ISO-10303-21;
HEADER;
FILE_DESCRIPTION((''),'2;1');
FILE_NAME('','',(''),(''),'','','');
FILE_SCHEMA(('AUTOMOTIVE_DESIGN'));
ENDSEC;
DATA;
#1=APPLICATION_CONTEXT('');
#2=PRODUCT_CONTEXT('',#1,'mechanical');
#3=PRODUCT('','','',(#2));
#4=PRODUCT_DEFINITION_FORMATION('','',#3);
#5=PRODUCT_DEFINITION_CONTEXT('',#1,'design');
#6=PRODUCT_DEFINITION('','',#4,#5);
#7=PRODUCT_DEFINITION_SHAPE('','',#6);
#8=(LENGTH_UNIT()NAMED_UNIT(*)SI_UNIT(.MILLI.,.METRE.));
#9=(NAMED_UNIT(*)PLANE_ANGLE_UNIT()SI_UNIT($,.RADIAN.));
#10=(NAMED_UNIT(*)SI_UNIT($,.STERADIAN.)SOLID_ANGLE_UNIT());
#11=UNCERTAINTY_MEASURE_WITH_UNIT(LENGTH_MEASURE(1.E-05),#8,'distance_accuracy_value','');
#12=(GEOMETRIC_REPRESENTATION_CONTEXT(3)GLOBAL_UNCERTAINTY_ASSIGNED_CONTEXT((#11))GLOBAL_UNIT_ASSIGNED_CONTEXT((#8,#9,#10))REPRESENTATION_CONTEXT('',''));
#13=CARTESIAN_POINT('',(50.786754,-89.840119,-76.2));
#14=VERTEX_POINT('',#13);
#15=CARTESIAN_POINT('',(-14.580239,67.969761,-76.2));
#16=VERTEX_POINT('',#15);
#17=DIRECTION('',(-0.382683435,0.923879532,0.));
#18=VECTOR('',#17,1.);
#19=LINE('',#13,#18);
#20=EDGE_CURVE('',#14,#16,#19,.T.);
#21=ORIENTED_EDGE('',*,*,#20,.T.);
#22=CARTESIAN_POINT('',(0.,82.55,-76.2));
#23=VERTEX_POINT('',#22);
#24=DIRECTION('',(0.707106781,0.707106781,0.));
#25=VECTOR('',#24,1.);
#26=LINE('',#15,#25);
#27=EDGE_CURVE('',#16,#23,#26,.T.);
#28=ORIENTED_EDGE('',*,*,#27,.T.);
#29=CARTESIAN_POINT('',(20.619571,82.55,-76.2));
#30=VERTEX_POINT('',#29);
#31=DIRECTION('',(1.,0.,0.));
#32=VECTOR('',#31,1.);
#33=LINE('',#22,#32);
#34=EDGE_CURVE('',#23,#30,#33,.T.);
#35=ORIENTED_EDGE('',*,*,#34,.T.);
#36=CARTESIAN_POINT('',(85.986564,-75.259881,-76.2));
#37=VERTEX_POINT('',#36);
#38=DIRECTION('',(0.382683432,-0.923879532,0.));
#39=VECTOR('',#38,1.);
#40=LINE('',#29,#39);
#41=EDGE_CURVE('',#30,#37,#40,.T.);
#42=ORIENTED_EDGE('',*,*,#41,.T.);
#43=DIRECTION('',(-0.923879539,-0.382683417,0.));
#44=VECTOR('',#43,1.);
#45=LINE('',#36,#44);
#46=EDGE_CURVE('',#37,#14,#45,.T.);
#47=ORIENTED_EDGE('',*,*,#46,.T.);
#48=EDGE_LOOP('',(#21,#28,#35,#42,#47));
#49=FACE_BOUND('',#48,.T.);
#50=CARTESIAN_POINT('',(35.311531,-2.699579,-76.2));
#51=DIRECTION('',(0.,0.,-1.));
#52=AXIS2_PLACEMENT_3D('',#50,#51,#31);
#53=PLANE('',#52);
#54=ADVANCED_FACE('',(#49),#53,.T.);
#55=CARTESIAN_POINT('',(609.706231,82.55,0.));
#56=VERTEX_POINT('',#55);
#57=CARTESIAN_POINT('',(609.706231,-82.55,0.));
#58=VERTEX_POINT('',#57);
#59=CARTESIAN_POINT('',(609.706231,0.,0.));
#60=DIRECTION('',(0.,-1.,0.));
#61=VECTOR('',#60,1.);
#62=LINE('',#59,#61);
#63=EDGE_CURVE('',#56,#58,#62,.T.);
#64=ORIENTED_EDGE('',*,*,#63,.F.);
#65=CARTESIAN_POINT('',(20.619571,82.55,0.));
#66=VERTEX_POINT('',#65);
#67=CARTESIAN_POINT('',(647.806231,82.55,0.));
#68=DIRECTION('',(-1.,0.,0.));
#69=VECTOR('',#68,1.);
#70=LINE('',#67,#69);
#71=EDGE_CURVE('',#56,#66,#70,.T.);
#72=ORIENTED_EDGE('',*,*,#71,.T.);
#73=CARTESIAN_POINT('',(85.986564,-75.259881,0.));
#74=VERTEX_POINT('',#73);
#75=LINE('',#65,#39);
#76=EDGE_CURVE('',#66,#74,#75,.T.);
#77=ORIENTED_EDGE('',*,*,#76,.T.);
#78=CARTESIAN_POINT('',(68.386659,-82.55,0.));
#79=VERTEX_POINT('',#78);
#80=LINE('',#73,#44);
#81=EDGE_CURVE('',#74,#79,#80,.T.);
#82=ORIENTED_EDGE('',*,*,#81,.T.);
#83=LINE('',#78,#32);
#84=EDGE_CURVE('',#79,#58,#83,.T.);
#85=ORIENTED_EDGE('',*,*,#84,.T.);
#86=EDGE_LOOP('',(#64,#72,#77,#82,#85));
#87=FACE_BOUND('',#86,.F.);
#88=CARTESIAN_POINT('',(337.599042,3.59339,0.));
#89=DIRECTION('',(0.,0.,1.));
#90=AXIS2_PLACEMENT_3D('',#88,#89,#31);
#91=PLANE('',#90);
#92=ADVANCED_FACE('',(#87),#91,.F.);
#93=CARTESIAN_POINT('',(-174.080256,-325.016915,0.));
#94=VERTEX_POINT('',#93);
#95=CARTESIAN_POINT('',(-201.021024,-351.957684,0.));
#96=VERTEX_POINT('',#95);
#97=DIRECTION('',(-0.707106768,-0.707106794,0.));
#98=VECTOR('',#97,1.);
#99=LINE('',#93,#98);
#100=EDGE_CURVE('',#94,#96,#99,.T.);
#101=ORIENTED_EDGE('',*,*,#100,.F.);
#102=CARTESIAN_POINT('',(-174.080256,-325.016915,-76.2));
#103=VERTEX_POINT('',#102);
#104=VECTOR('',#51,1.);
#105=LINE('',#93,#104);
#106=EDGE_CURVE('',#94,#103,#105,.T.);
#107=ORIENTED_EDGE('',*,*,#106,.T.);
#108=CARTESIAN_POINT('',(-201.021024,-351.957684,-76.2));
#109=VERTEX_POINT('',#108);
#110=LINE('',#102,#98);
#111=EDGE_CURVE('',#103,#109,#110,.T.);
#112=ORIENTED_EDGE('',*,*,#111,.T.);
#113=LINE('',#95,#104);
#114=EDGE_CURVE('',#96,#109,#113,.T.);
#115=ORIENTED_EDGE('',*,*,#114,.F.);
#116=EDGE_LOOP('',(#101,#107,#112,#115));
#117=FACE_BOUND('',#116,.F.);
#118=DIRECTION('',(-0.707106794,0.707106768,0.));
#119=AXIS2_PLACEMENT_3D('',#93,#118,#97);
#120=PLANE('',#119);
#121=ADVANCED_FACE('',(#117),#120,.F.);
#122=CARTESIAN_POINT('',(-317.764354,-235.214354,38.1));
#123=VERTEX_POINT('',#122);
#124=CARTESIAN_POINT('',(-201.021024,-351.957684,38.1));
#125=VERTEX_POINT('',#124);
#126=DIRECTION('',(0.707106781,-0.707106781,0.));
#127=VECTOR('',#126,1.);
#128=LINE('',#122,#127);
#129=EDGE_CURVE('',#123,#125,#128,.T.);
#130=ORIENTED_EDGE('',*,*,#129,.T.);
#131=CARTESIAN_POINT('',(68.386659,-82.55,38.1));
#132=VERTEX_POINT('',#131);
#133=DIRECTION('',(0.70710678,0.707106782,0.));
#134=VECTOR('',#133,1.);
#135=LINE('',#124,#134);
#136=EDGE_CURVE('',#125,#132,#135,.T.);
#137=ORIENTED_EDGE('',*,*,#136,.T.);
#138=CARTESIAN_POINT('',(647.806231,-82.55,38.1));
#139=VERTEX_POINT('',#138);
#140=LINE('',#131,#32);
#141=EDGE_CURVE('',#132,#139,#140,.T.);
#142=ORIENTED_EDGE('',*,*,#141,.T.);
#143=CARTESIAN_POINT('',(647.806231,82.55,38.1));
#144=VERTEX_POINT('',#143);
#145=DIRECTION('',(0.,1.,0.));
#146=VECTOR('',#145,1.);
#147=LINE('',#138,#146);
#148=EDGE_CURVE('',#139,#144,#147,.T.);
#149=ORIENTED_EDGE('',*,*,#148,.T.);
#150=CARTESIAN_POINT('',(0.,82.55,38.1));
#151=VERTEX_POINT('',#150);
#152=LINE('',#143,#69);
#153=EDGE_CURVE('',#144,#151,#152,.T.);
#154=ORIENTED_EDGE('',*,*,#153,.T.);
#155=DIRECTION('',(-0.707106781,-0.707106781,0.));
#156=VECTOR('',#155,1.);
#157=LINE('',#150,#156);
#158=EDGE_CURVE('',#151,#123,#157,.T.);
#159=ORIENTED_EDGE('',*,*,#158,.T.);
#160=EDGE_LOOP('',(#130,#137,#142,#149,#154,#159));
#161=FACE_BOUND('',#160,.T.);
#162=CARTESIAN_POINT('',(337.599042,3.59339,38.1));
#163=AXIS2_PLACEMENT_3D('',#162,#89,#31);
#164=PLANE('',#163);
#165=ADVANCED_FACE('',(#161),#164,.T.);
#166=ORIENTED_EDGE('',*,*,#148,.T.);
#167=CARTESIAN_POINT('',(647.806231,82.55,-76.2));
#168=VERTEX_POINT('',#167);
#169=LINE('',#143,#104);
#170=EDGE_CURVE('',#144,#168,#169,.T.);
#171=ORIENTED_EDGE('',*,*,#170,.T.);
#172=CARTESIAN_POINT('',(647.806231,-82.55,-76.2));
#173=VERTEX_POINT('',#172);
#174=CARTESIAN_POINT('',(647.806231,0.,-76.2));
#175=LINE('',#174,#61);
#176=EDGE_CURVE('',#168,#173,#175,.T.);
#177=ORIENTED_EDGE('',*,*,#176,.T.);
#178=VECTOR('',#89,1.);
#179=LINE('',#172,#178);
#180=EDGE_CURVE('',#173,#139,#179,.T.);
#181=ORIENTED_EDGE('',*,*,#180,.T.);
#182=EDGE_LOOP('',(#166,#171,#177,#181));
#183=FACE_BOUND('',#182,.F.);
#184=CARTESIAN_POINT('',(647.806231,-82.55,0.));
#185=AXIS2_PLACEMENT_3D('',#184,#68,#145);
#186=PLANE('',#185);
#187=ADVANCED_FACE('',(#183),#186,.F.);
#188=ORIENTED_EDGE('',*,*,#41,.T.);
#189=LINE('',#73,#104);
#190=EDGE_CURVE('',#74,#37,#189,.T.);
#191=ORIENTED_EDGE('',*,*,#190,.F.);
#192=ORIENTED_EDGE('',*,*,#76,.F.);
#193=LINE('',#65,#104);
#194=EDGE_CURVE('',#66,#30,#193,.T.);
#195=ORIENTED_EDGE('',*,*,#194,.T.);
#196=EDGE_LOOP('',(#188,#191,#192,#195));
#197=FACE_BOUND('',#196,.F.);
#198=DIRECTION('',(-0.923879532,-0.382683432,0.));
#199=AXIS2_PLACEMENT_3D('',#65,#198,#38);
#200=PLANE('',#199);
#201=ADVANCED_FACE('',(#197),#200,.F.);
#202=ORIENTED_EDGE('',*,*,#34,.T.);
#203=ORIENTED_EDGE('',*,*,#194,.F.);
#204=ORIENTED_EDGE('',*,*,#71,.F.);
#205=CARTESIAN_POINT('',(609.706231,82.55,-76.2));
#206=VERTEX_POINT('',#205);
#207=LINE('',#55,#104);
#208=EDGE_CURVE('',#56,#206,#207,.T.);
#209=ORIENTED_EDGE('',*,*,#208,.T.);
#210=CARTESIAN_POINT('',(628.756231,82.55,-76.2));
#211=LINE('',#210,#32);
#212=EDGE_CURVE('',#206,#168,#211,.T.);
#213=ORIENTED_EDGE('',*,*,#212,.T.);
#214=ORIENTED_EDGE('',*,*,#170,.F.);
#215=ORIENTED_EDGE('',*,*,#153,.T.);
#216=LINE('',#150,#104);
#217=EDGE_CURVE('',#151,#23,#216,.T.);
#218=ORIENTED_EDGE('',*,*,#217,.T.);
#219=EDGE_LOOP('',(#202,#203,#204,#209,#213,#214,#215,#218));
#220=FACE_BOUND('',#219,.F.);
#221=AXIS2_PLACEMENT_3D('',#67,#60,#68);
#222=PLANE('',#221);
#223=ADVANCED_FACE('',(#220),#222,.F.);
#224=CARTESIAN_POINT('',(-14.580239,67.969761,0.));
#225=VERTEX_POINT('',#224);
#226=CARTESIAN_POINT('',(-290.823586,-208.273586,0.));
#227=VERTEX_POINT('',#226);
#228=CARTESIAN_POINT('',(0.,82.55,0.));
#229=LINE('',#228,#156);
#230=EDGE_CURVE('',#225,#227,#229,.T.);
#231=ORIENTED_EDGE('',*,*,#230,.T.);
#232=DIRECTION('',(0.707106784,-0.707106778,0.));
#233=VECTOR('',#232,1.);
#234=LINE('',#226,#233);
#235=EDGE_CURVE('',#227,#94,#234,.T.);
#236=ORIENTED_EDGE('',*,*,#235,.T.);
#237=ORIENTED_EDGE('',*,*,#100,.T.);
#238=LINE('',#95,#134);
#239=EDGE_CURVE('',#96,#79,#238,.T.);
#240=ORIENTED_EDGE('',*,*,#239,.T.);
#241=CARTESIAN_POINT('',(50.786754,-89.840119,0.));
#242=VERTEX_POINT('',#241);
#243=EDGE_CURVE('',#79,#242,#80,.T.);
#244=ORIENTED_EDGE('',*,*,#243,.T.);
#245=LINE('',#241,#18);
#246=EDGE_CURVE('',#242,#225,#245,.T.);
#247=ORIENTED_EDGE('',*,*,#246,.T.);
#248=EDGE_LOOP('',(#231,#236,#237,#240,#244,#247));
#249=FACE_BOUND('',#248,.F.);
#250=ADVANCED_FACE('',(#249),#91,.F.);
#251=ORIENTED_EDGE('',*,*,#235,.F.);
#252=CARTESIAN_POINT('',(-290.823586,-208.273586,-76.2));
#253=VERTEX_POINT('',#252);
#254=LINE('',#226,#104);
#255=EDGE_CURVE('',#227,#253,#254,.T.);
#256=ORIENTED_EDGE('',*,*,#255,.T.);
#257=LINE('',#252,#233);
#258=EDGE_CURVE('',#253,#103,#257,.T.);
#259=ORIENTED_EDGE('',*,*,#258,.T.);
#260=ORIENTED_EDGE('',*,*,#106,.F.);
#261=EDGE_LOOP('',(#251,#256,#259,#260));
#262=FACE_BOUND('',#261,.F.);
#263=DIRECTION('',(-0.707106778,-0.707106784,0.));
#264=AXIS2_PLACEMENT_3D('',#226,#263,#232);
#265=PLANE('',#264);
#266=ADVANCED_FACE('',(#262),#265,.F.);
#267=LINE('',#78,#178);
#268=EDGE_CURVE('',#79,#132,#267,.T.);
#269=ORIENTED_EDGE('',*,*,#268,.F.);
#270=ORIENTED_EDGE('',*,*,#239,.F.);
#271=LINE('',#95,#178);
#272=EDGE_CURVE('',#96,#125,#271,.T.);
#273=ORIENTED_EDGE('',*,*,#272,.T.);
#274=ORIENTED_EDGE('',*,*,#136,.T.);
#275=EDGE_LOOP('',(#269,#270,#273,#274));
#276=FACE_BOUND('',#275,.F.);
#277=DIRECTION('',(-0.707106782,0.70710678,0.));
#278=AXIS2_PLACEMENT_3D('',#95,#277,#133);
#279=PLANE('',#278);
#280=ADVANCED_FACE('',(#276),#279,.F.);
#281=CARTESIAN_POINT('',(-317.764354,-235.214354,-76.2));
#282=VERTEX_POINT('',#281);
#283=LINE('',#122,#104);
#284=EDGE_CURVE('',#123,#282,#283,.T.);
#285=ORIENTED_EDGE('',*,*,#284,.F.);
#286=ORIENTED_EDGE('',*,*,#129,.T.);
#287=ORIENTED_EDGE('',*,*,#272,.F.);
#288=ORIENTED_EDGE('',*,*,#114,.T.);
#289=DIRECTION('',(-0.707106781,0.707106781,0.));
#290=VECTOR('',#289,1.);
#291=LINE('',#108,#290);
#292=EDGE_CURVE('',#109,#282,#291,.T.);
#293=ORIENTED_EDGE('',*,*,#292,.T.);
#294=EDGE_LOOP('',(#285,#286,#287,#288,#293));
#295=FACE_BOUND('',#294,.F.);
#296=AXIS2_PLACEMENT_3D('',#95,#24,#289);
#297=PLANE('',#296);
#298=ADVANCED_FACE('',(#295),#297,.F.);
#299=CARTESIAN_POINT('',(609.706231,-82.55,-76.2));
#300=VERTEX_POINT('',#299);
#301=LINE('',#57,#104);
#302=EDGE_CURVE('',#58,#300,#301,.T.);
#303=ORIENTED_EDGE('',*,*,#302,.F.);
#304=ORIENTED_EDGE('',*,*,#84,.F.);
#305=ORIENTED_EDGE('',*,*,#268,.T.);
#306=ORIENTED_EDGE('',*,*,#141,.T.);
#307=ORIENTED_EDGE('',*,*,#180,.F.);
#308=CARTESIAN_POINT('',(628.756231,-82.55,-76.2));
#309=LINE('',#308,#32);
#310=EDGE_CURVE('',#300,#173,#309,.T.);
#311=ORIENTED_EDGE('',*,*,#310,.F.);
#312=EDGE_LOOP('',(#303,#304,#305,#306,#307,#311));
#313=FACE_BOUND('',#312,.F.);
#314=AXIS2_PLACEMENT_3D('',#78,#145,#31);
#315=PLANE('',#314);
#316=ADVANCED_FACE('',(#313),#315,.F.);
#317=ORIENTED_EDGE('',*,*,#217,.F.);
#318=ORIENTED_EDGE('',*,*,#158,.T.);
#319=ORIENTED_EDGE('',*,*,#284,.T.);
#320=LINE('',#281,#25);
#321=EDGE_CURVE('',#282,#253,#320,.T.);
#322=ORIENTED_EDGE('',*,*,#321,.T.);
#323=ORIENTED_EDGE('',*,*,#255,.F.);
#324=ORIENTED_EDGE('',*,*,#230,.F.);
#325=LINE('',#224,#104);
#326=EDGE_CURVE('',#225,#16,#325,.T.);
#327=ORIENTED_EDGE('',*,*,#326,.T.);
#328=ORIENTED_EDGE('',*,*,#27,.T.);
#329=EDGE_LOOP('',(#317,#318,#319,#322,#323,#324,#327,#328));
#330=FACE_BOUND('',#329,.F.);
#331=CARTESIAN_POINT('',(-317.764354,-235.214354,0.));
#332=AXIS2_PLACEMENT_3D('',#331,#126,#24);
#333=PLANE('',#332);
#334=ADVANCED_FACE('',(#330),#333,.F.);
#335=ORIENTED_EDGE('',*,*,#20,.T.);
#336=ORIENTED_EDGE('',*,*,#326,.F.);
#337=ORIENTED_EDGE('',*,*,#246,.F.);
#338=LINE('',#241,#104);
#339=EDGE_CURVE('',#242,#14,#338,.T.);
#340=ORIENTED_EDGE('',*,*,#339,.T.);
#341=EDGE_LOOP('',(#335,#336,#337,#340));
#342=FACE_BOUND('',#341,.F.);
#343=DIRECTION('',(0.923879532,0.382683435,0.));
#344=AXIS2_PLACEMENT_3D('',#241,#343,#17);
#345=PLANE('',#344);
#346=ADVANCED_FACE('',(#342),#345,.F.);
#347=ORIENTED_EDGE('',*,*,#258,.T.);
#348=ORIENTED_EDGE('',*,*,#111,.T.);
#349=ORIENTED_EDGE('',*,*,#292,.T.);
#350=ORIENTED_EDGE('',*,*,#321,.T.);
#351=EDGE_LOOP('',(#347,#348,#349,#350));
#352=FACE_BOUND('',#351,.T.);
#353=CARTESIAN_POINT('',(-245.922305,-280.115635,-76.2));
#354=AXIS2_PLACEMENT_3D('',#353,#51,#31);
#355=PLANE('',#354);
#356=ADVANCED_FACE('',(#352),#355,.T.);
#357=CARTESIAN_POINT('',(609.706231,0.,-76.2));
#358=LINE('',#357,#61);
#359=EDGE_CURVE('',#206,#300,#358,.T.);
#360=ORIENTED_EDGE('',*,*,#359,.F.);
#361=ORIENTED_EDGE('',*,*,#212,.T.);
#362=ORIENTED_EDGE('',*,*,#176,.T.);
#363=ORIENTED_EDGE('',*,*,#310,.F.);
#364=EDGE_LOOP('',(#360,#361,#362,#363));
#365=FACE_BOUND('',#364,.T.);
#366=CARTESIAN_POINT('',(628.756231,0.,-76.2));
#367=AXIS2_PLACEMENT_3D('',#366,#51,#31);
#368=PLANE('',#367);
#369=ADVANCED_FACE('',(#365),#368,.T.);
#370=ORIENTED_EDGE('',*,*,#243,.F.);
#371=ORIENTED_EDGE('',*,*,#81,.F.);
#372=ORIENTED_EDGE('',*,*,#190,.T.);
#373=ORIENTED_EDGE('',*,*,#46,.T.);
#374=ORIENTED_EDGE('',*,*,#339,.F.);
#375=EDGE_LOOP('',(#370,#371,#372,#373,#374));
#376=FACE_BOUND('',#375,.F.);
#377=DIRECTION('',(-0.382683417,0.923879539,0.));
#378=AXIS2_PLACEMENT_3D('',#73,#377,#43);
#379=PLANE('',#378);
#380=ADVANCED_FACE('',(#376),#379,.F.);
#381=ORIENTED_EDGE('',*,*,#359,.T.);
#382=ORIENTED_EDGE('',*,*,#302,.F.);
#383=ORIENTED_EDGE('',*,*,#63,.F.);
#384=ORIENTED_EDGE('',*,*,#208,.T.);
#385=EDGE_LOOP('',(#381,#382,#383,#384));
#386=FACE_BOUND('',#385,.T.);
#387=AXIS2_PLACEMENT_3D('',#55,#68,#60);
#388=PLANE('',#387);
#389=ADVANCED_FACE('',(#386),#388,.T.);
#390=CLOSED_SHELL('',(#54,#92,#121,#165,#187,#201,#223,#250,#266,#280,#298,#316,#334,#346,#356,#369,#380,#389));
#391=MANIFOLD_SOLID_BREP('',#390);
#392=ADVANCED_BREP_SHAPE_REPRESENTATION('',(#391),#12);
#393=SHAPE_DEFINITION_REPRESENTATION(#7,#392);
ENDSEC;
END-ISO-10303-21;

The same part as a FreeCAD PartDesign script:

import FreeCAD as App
import Part
import Sketcher
from FreeCAD import Vector
Q = App.Units.Quantity

doc = App.newDocument("Part")
body = doc.addObject("PartDesign::Body", "Body")

# Sketch on XY plane
sketch1 = body.newObject("Sketcher::SketchObject", "Sketch")
sketch1.AttachmentSupport = (doc.getObject("XY_Plane"), [""])
sketch1.MapMode = "FlatFace"
sketch1.addGeometry([
    Part.LineSegment(Vector(647.806231, 82.55, 0), Vector(0, 82.55, 0)),  # 0
    Part.LineSegment(Vector(0, 82.55, 0), Vector(-317.764354, -235.214354, 0)),  # 1
    Part.LineSegment(Vector(-317.764354, -235.214354, 0), Vector(-201.021024, -351.957684, 0)),  # 2
    Part.LineSegment(Vector(-201.021024, -351.957684, 0), Vector(68.386659, -82.55, 0)),  # 3
    Part.LineSegment(Vector(68.386659, -82.55, 0), Vector(647.806231, -82.55, 0)),  # 4
    Part.LineSegment(Vector(647.806231, -82.55, 0), Vector(647.806231, 82.55, 0)),  # 5
], False)
sketch1.addConstraint([
    Sketcher.Constraint("Coincident", 0, 2, 1, 1),
    Sketcher.Constraint("Coincident", 1, 2, 2, 1),
    Sketcher.Constraint("Coincident", 2, 2, 3, 1),
    Sketcher.Constraint("Coincident", 3, 2, 4, 1),
    Sketcher.Constraint("Coincident", 4, 2, 5, 1),
    Sketcher.Constraint("Coincident", 5, 2, 0, 1),
    Sketcher.Constraint("Horizontal", 0),
    Sketcher.Constraint("Horizontal", 4),
    Sketcher.Constraint("Vertical", 5),
    Sketcher.Constraint("PointOnObject", 0, 2, -2),
    Sketcher.Constraint("Perpendicular", 1, 2),
    Sketcher.Constraint("Perpendicular", 2, 3),
    Sketcher.Constraint("Distance", 3, Q("15 in")),
    Sketcher.Constraint("DistanceY", 5, 1, 5, 2, Q("6.5 in")),
    Sketcher.Constraint("Angle", 1, Q("-135 deg")),
    Sketcher.Constraint("Distance", 2, Q("6.5 in")),
    Sketcher.Constraint("DistanceY", -1, 1, 0, 2, Q("3.25 in")),
    Sketcher.Constraint("DistanceX", 0, 2, 0, 1, 647.806231),
])
pad1 = body.newObject("PartDesign::Pad", "Pad")
pad1.Profile = sketch1
pad1.Length = Q("1.5 in")

# Sketch on XY plane
sketch2 = body.newObject("Sketcher::SketchObject", "Sketch001")
sketch2.AttachmentSupport = (doc.getObject("XY_Plane"), [""])
sketch2.MapMode = "FlatFace"
sketch2.addGeometry([
    Part.LineSegment(Vector(-201.021024, -351.957684, 0), Vector(-317.764354, -235.214354, 0)),  # 0
    Part.LineSegment(Vector(-317.764354, -235.214354, 0), Vector(-290.823586, -208.273586, 0)),  # 1
    Part.LineSegment(Vector(-290.823586, -208.273586, 0), Vector(-174.080256, -325.016915, 0)),  # 2
    Part.LineSegment(Vector(-174.080256, -325.016915, 0), Vector(-201.021024, -351.957684, 0)),  # 3
    Part.LineSegment(Vector(20.619571, 82.55, 0), Vector(85.986564, -75.259881, 0)),  # 4
    Part.LineSegment(Vector(85.986564, -75.259881, 0), Vector(50.786754, -89.840119, 0)),  # 5
    Part.LineSegment(Vector(50.786754, -89.840119, 0), Vector(-14.580239, 67.969761, 0)),  # 6
    Part.LineSegment(Vector(-14.580239, 67.969761, 0), Vector(0, 82.55, 0)),  # 7
    Part.LineSegment(Vector(0, 82.55, 0), Vector(20.619571, 82.55, 0)),  # 8
    Part.LineSegment(Vector(609.706231, -82.55, 0), Vector(609.706231, 82.55, 0)),  # 9
    Part.LineSegment(Vector(609.706231, 82.55, 0), Vector(647.806231, 82.55, 0)),  # 10
    Part.LineSegment(Vector(647.806231, 82.55, 0), Vector(647.806231, -82.55, 0)),  # 11
    Part.LineSegment(Vector(647.806231, -82.55, 0), Vector(609.706231, -82.55, 0)),  # 12
], False)
sketch2.addConstraint([
    Sketcher.Constraint("Coincident", 0, 2, 1, 1),
    Sketcher.Constraint("Coincident", 1, 2, 2, 1),
    Sketcher.Constraint("Coincident", 2, 2, 3, 1),
    Sketcher.Constraint("Coincident", 3, 2, 0, 1),
    Sketcher.Constraint("Coincident", 4, 2, 5, 1),
    Sketcher.Constraint("Coincident", 5, 2, 6, 1),
    Sketcher.Constraint("Coincident", 6, 2, 7, 1),
    Sketcher.Constraint("Coincident", 7, 2, 8, 1),
    Sketcher.Constraint("Coincident", 8, 2, 4, 1),
    Sketcher.Constraint("Coincident", 9, 2, 10, 1),
    Sketcher.Constraint("Coincident", 10, 2, 11, 1),
    Sketcher.Constraint("Coincident", 11, 2, 12, 1),
    Sketcher.Constraint("Coincident", 12, 2, 9, 1),
    Sketcher.Constraint("Horizontal", 8),
    Sketcher.Constraint("Vertical", 9),
    Sketcher.Constraint("Horizontal", 10),
    Sketcher.Constraint("Vertical", 11),
    Sketcher.Constraint("Horizontal", 12),
    Sketcher.Constraint("PointOnObject", 7, 2, -2),
    Sketcher.Constraint("Perpendicular", 0, 1),
    Sketcher.Constraint("Perpendicular", 1, 2),
    Sketcher.Constraint("Perpendicular", 2, 3),
    Sketcher.Constraint("Perpendicular", 4, 5),
    Sketcher.Constraint("Perpendicular", 5, 6),
    Sketcher.Constraint("Parallel", 3, 7),
    Sketcher.Constraint("Horizontal", 8, 2, 9, 2),
    Sketcher.Constraint("Equal", 3, 5),
    Sketcher.Constraint("Equal", 4, 6),
    Sketcher.Constraint("DistanceX", 10, 1, 10, 2, Q("1.5 in")),
    Sketcher.Constraint("DistanceY", 9, 1, 9, 2, Q("6.5 in")),
    Sketcher.Constraint("Angle", 0, Q("135 deg")),
    Sketcher.Constraint("Distance", 0, Q("6.5 in")),
    Sketcher.Constraint("Distance", 1, Q("1.5 in")),
    Sketcher.Constraint("Angle", 4, Q("-67.5 deg")),
    Sketcher.Constraint("DistanceY", -1, 1, 7, 2, Q("3.25 in")),
    Sketcher.Constraint("DistanceY", 4, 2, -1, 1, 75.259881),
    Sketcher.Constraint("DistanceX", -1, 1, 9, 2, 609.706231),
    Sketcher.Constraint("DistanceX", 2, 2, 4, 2, 260.06682),
    Sketcher.Constraint("DistanceY", 0, 2, -1, 1, 235.214354),
])
pad2 = body.newObject("PartDesign::Pad", "Pad001")
pad2.Profile = sketch2
pad2.Length = Q("3 in")
pad2.Reversed = True

doc.recompute()
